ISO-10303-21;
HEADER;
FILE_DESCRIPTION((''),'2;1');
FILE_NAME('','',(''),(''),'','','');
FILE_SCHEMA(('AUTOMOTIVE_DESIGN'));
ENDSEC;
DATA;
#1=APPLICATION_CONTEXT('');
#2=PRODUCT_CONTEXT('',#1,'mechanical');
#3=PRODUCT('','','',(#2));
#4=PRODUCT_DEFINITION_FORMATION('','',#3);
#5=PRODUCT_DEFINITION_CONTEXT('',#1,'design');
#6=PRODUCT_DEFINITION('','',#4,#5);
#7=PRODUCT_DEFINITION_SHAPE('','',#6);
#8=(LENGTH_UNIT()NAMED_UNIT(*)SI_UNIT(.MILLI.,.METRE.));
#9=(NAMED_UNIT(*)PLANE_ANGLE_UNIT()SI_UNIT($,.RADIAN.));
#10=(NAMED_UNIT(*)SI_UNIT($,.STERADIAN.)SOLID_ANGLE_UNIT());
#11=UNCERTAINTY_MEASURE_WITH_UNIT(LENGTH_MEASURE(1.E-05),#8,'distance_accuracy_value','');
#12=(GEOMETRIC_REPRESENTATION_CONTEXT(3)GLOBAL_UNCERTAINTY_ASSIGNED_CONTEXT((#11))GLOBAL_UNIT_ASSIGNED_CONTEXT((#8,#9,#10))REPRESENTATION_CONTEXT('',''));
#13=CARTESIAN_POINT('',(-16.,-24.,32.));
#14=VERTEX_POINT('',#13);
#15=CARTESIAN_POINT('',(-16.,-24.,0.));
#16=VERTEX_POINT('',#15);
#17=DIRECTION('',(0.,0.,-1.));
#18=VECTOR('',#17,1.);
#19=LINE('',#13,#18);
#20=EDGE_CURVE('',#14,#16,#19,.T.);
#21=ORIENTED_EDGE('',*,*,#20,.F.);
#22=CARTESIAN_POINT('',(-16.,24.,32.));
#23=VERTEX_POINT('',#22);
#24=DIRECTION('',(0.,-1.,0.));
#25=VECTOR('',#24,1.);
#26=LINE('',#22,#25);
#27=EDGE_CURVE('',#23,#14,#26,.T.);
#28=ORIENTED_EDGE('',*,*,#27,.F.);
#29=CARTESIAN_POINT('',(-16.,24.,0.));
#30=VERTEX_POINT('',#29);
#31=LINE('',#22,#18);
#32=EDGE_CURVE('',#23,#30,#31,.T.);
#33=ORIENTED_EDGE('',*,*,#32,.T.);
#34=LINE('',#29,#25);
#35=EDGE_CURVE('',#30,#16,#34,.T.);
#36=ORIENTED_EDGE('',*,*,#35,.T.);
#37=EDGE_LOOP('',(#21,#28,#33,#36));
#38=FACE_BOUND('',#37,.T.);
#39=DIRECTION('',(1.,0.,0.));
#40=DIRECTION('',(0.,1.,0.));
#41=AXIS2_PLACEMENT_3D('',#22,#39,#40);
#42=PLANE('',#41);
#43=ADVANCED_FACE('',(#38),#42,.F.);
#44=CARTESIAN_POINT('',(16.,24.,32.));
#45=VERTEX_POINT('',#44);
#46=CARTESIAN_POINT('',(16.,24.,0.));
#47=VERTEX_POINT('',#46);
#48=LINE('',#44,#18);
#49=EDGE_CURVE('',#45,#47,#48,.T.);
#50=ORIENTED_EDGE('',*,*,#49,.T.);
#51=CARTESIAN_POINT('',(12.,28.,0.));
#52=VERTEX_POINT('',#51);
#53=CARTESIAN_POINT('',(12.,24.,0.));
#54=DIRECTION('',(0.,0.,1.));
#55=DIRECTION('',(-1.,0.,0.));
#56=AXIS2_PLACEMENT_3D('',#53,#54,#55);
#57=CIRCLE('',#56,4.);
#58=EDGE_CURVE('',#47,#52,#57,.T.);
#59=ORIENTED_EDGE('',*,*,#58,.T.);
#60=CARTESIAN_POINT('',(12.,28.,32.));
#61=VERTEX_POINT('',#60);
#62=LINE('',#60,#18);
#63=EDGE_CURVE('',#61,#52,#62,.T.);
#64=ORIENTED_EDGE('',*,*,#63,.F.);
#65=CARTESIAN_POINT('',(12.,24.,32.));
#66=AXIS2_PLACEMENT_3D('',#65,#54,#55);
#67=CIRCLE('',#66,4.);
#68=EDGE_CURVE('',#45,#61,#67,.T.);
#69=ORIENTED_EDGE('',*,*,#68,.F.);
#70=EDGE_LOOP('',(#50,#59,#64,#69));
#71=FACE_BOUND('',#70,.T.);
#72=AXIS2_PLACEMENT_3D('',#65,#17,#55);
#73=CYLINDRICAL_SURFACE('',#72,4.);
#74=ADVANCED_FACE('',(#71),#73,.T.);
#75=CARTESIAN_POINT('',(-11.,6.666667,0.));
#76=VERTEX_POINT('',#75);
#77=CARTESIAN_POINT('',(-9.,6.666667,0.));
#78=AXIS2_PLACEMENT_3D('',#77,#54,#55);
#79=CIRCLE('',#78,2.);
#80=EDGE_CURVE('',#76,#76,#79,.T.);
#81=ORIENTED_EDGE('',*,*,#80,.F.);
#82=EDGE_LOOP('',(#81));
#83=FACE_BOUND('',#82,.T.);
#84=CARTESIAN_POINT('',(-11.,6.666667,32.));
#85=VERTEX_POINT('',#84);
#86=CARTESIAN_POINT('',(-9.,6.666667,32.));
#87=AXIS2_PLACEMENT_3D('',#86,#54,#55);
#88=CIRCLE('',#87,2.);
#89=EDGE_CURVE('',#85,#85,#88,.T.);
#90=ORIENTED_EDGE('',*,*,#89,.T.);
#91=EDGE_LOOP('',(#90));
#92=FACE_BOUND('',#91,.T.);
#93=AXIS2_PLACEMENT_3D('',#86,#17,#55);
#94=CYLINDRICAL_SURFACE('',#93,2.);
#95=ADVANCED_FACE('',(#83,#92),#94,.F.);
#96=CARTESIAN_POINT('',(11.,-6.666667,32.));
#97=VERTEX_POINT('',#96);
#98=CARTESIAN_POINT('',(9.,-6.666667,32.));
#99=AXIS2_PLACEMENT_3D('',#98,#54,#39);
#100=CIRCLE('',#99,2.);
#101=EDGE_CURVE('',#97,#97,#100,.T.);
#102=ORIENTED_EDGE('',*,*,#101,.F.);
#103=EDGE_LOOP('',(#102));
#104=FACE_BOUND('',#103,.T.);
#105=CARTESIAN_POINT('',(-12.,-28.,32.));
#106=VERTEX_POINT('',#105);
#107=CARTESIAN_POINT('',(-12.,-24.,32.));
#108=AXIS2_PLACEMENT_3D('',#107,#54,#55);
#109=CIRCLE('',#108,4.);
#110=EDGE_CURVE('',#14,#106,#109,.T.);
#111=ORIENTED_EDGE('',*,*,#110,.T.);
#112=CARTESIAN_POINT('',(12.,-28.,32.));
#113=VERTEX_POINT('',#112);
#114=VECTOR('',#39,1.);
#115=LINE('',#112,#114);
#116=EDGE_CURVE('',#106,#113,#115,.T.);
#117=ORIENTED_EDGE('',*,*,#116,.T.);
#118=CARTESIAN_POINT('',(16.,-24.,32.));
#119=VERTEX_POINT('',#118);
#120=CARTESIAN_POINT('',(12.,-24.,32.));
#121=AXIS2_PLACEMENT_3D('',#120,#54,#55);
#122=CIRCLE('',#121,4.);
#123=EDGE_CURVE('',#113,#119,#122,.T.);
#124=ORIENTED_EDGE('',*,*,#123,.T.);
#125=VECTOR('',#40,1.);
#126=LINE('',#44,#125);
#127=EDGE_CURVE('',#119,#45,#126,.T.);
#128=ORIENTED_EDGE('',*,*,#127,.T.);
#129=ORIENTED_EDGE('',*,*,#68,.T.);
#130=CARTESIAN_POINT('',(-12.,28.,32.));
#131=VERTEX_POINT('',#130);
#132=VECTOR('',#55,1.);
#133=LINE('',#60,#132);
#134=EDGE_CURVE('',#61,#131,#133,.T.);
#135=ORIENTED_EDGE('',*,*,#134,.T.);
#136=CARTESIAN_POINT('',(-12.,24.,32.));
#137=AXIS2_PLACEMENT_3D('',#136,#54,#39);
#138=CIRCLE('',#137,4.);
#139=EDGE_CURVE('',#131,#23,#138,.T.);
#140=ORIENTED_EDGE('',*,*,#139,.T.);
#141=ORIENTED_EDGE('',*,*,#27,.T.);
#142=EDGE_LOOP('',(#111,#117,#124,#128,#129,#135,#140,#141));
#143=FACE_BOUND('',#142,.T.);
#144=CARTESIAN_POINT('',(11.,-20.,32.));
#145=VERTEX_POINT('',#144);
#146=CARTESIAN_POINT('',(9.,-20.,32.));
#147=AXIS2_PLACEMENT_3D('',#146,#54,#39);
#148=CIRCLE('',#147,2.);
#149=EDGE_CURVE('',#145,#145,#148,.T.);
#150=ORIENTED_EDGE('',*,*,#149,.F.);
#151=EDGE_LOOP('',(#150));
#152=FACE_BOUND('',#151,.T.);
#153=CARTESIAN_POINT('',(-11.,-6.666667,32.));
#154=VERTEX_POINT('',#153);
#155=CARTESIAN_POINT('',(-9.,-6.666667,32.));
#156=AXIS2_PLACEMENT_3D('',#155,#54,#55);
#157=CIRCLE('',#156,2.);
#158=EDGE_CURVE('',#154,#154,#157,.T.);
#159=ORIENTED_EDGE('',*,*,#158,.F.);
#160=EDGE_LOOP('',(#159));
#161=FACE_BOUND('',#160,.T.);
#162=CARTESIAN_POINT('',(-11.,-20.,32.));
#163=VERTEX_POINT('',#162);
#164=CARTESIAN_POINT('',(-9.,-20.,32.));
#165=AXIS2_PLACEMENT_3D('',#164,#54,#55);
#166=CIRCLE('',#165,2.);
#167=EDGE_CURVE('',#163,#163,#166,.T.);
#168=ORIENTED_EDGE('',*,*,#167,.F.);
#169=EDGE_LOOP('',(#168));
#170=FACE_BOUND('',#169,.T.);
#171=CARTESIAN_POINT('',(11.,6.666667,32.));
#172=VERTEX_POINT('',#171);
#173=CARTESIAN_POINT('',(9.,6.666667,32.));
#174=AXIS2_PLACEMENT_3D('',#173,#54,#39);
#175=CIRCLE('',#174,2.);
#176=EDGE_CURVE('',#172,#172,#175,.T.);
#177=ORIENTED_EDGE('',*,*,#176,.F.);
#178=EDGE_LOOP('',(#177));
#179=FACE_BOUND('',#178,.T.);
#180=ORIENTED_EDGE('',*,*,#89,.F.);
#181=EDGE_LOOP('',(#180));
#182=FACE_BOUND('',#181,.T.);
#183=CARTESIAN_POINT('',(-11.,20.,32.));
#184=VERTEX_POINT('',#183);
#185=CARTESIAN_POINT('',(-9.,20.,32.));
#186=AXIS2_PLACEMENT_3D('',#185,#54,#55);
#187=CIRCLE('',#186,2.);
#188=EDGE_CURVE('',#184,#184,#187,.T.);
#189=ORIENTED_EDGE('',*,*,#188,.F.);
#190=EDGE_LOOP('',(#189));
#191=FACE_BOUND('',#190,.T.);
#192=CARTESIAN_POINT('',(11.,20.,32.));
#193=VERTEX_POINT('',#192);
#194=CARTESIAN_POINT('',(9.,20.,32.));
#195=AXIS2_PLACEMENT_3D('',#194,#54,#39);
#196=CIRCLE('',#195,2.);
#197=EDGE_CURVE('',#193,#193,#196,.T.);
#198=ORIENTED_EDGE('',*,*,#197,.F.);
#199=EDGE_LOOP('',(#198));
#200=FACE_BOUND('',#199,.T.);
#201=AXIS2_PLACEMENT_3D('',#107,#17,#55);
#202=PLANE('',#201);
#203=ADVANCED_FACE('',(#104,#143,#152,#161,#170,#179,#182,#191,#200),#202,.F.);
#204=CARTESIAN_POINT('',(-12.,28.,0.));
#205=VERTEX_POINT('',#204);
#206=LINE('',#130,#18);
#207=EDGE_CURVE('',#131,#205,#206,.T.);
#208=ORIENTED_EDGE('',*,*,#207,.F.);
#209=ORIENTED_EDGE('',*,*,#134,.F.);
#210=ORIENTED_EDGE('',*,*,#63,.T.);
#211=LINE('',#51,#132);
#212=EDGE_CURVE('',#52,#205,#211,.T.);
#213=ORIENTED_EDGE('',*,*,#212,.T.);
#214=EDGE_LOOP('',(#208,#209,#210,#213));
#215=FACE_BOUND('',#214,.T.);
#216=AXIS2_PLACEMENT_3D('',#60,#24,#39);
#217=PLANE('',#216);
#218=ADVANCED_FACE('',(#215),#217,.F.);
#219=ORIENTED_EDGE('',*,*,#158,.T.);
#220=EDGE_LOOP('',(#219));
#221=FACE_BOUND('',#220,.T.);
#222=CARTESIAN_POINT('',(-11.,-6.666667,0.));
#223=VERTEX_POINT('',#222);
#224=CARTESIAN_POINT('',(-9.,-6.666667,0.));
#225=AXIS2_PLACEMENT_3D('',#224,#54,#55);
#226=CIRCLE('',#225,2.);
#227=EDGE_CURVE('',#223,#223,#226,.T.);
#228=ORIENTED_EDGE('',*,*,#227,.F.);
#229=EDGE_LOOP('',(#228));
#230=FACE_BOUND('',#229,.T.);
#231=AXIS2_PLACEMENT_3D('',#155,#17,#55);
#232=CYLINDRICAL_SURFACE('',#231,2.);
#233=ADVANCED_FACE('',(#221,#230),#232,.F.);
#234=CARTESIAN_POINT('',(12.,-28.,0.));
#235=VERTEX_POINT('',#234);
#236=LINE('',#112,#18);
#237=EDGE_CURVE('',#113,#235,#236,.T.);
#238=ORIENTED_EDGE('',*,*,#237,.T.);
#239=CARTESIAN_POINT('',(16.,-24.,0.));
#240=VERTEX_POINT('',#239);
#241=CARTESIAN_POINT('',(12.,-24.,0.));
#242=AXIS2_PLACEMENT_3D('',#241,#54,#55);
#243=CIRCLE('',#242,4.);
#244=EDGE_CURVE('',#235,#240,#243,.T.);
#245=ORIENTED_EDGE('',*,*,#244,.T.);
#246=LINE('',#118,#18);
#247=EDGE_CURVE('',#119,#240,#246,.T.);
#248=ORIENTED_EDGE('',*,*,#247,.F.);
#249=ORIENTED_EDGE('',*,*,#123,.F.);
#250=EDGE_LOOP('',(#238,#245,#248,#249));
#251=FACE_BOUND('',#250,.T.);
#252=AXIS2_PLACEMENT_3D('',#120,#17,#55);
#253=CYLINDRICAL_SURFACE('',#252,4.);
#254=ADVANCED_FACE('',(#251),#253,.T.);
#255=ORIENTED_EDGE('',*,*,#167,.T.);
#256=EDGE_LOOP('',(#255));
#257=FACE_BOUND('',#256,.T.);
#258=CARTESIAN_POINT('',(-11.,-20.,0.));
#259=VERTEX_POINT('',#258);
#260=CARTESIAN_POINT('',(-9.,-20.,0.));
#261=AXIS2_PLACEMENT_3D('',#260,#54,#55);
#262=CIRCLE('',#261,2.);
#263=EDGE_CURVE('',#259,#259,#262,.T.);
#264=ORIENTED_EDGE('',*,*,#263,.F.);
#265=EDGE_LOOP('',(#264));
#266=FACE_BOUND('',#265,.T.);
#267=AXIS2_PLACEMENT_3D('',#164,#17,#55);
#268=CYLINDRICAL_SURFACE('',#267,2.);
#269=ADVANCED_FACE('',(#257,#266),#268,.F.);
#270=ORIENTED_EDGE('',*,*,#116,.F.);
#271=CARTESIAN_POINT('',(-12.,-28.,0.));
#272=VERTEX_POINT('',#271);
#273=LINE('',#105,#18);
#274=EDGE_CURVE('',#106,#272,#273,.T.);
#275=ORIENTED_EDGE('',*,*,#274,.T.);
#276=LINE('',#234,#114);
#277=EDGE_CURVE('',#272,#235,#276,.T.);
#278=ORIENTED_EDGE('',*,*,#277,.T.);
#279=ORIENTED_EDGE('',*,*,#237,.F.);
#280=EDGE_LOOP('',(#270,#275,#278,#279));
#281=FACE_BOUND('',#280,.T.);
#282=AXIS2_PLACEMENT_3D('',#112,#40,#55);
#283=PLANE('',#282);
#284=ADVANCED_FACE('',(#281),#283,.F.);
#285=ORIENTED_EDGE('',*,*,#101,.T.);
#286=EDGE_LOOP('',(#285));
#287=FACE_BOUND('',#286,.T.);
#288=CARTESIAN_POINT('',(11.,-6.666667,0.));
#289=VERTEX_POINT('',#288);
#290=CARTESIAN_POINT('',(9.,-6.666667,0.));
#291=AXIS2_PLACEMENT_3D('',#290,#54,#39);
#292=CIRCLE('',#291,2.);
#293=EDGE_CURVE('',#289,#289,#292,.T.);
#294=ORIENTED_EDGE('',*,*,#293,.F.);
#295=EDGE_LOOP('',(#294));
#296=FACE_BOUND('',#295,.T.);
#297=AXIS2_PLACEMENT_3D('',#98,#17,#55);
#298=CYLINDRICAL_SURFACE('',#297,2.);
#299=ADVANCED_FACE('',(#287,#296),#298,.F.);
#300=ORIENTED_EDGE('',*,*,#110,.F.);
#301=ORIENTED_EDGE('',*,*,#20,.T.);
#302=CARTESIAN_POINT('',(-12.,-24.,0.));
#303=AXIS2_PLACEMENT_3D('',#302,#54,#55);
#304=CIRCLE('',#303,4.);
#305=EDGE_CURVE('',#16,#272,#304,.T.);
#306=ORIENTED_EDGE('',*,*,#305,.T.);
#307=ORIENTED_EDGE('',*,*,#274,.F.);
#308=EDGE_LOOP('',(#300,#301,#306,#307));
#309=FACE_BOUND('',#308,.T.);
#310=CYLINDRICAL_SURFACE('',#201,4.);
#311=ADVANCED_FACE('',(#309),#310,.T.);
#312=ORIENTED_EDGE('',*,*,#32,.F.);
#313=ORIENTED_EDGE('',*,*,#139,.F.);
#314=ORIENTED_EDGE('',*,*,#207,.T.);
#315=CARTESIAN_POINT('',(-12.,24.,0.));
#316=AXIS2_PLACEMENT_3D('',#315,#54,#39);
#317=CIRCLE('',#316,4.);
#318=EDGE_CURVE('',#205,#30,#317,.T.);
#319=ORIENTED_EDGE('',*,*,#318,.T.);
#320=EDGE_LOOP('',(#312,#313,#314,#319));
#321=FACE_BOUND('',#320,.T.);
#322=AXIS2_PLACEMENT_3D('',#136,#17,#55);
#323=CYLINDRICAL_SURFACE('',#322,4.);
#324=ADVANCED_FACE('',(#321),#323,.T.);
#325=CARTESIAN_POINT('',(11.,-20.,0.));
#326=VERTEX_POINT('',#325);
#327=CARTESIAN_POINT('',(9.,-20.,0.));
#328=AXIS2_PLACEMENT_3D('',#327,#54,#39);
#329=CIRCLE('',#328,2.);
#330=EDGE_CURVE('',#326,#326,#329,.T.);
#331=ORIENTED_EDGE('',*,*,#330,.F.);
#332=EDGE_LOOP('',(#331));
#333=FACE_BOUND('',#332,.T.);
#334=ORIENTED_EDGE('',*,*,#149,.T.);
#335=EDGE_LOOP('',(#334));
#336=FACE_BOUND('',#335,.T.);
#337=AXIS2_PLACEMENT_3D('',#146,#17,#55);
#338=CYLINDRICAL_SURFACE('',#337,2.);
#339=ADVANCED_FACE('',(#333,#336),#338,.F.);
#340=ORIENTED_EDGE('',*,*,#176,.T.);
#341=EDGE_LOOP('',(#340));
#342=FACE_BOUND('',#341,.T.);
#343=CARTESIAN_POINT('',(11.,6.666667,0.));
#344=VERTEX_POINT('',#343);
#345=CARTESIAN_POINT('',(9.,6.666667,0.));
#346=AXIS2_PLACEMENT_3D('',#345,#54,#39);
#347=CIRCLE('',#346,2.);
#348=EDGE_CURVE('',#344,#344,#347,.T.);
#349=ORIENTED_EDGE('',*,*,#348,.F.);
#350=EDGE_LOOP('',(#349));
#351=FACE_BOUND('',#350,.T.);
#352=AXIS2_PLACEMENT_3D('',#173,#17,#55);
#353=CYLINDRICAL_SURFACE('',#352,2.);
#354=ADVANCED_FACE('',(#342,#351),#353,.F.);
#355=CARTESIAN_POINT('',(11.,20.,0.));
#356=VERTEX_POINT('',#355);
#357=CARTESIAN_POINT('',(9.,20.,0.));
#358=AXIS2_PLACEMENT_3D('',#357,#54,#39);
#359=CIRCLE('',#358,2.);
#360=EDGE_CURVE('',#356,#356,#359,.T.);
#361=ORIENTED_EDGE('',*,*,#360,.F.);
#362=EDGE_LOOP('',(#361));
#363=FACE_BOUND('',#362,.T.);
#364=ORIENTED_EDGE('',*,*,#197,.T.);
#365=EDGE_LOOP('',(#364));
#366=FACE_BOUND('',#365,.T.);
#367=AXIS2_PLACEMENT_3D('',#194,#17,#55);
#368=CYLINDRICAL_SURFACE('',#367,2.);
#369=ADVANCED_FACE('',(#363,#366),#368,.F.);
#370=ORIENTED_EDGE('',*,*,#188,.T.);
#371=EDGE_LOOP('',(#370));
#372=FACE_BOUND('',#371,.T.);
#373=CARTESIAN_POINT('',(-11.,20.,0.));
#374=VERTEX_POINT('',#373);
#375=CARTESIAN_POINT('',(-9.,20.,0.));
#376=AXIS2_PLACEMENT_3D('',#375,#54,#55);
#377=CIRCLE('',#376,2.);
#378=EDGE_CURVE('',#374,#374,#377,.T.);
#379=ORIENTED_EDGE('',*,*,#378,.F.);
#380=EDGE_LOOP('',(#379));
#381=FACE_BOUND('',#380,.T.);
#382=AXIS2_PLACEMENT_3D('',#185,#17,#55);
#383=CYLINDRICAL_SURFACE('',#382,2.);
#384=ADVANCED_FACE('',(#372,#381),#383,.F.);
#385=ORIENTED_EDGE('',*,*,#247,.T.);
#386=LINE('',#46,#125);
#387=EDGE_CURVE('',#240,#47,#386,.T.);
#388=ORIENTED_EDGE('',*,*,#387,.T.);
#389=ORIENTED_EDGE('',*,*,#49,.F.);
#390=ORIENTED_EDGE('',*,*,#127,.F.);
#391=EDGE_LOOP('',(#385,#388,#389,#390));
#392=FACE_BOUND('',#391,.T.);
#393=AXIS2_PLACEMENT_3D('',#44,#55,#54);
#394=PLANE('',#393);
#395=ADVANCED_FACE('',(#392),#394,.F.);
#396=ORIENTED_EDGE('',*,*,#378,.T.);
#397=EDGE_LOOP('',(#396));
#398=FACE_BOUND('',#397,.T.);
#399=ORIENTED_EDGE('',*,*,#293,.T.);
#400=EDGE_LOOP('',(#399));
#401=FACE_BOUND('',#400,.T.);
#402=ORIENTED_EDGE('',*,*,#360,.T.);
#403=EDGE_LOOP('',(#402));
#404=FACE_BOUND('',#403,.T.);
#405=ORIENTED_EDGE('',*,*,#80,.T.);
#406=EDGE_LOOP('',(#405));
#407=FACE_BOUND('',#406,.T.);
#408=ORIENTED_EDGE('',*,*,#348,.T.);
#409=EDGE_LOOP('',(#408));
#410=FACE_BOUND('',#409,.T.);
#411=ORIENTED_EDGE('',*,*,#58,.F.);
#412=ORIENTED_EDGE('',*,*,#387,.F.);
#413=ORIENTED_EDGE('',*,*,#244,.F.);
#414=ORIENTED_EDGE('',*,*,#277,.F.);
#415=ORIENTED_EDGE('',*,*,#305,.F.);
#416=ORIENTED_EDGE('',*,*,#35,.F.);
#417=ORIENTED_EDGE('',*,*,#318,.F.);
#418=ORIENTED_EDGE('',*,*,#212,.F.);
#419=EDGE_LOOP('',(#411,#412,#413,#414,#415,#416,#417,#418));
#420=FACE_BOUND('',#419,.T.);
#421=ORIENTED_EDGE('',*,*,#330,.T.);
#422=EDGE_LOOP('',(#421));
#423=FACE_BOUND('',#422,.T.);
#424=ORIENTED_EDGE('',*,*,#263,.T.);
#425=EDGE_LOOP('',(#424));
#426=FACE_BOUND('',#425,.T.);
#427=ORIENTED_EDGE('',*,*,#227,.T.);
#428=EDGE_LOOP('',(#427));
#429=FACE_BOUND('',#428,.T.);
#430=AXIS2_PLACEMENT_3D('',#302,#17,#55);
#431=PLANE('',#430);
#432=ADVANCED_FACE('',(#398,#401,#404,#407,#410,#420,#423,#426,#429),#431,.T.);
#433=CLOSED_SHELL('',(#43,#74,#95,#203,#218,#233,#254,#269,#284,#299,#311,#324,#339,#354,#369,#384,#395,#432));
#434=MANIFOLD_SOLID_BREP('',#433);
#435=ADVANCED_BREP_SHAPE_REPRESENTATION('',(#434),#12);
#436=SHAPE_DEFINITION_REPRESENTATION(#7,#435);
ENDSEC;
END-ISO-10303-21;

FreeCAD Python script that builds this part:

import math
import FreeCAD as App
import Part
import Sketcher

doc = App.newDocument("Part")
body = doc.addObject("PartDesign::Body", "Body")

sketch1 = doc.addObject("Sketcher::SketchObject", "Sketch")
body.addObject(sketch1)
sketch1.AttachmentSupport = (doc.XY_Plane, [""])
sketch1.MapMode = "FlatFace"
sketch1.addGeometry(Part.LineSegment(App.Vector(12, 28, 0), App.Vector(-12, 28, 0)), False)
sketch1.addGeometry(Part.ArcOfCircle(Part.Circle(App.Vector(-12, 24, 0), App.Vector(0, 0, 1), 4), math.radians(90), math.radians(180)), False)
sketch1.addGeometry(Part.LineSegment(App.Vector(-16, 24, 0), App.Vector(-16, -24, 0)), False)
sketch1.addGeometry(Part.ArcOfCircle(Part.Circle(App.Vector(-12, -24, 0), App.Vector(0, 0, 1), 4), math.radians(180), math.radians(270)), False)
sketch1.addGeometry(Part.LineSegment(App.Vector(-12, -28, 0), App.Vector(12, -28, 0)), False)
sketch1.addGeometry(Part.ArcOfCircle(Part.Circle(App.Vector(12, -24, 0), App.Vector(0, 0, 1), 4), math.radians(-90), math.radians(0)), False)
sketch1.addGeometry(Part.LineSegment(App.Vector(16, -24, 0), App.Vector(16, 24, 0)), False)
sketch1.addGeometry(Part.ArcOfCircle(Part.Circle(App.Vector(12, 24, 0), App.Vector(0, 0, 1), 4), math.radians(0), math.radians(90)), False)
sketch1.addGeometry(Part.Circle(App.Vector(-9, -20, 0), App.Vector(0, 0, 1), 2), False)
sketch1.addGeometry(Part.Circle(App.Vector(-9, -6.7, 0), App.Vector(0, 0, 1), 2), False)
sketch1.addGeometry(Part.Circle(App.Vector(9, -20, 0), App.Vector(0, 0, 1), 2), False)
sketch1.addGeometry(Part.Circle(App.Vector(9, -6.7, 0), App.Vector(0, 0, 1), 2), False)
sketch1.addGeometry(Part.Circle(App.Vector(-9, 6.7, 0), App.Vector(0, 0, 1), 2), False)
sketch1.addGeometry(Part.Circle(App.Vector(-9, 20, 0), App.Vector(0, 0, 1), 2), False)
sketch1.addGeometry(Part.Circle(App.Vector(9, 6.7, 0), App.Vector(0, 0, 1), 2), False)
sketch1.addGeometry(Part.Circle(App.Vector(9, 20, 0), App.Vector(0, 0, 1), 2), False)
sketch1.addConstraint(Sketcher.Constraint("Tangent", 0, 2, 1, 1))
sketch1.addConstraint(Sketcher.Constraint("Tangent", 1, 2, 2, 1))
sketch1.addConstraint(Sketcher.Constraint("Tangent", 2, 2, 3, 1))
sketch1.addConstraint(Sketcher.Constraint("Tangent", 3, 2, 4, 1))
sketch1.addConstraint(Sketcher.Constraint("Tangent", 4, 2, 5, 1))
sketch1.addConstraint(Sketcher.Constraint("Tangent", 5, 2, 6, 1))
sketch1.addConstraint(Sketcher.Constraint("Tangent", 6, 2, 7, 1))
sketch1.addConstraint(Sketcher.Constraint("Tangent", 7, 2, 0, 1))
sketch1.addConstraint(Sketcher.Constraint("Horizontal", 0))
sketch1.addConstraint(Sketcher.Constraint("Vertical", 2))
sketch1.addConstraint(Sketcher.Constraint("Horizontal", 4))
sketch1.addConstraint(Sketcher.Constraint("Vertical", 6))
sketch1.addConstraint(Sketcher.Constraint("Equal", 1, 3))
sketch1.addConstraint(Sketcher.Constraint("Equal", 3, 5))
sketch1.addConstraint(Sketcher.Constraint("Equal", 5, 7))
sketch1.addConstraint(Sketcher.Constraint("Equal", 8, 9))
sketch1.addConstraint(Sketcher.Constraint("Equal", 9, 10))
sketch1.addConstraint(Sketcher.Constraint("Equal", 10, 11))
sketch1.addConstraint(Sketcher.Constraint("Equal", 11, 12))
sketch1.addConstraint(Sketcher.Constraint("Equal", 12, 13))
sketch1.addConstraint(Sketcher.Constraint("Equal", 13, 14))
sketch1.addConstraint(Sketcher.Constraint("Equal", 14, 15))
sketch1.addConstraint(Sketcher.Constraint("Symmetric", 1, 3, 5, 3, -1, 1))
sketch1.addConstraint(Sketcher.Constraint("Symmetric", 11, 3, 12, 3, -1, 1))
sketch1.addConstraint(Sketcher.Constraint("Symmetric", 10, 3, 13, 3, -1, 1))
sketch1.addConstraint(Sketcher.Constraint("Symmetric", 9, 3, 14, 3, -1, 1))
sketch1.addConstraint(Sketcher.Constraint("Symmetric", 8, 3, 15, 3, -1, 1))
sketch1.addConstraint(Sketcher.Constraint("Symmetric", 8, 3, 10, 3, -2))
sketch1.addConstraint(Sketcher.Constraint("Symmetric", 9, 3, 11, 3, -2))
sketch1.addConstraint(Sketcher.Constraint("Vertical", 8, 3, 9, 3))
sketch1.addConstraint(Sketcher.Constraint("Diameter", 8, 4.0))
sketch1.addConstraint(Sketcher.Constraint("Radius", 1, 4.0))
sketch1.addConstraint(Sketcher.Constraint("DistanceX", 0, 2, 0, 1, 24.0))
sketch1.addConstraint(Sketcher.Constraint("DistanceY", 2, 2, 2, 1, 48.0))
sketch1.addConstraint(Sketcher.Constraint("DistanceX", 8, 3, -1, 1, 9.0))
sketch1.addConstraint(Sketcher.Constraint("DistanceY", 8, 3, -1, 1, 20.0))
sketch1.addConstraint(Sketcher.Constraint("DistanceY", 9, 3, -1, 1, 6.666667))
pad1 = doc.addObject("PartDesign::Pad", "Pad")
body.addObject(pad1)
pad1.Profile = sketch1
pad1.Length = 32

doc.recompute()
